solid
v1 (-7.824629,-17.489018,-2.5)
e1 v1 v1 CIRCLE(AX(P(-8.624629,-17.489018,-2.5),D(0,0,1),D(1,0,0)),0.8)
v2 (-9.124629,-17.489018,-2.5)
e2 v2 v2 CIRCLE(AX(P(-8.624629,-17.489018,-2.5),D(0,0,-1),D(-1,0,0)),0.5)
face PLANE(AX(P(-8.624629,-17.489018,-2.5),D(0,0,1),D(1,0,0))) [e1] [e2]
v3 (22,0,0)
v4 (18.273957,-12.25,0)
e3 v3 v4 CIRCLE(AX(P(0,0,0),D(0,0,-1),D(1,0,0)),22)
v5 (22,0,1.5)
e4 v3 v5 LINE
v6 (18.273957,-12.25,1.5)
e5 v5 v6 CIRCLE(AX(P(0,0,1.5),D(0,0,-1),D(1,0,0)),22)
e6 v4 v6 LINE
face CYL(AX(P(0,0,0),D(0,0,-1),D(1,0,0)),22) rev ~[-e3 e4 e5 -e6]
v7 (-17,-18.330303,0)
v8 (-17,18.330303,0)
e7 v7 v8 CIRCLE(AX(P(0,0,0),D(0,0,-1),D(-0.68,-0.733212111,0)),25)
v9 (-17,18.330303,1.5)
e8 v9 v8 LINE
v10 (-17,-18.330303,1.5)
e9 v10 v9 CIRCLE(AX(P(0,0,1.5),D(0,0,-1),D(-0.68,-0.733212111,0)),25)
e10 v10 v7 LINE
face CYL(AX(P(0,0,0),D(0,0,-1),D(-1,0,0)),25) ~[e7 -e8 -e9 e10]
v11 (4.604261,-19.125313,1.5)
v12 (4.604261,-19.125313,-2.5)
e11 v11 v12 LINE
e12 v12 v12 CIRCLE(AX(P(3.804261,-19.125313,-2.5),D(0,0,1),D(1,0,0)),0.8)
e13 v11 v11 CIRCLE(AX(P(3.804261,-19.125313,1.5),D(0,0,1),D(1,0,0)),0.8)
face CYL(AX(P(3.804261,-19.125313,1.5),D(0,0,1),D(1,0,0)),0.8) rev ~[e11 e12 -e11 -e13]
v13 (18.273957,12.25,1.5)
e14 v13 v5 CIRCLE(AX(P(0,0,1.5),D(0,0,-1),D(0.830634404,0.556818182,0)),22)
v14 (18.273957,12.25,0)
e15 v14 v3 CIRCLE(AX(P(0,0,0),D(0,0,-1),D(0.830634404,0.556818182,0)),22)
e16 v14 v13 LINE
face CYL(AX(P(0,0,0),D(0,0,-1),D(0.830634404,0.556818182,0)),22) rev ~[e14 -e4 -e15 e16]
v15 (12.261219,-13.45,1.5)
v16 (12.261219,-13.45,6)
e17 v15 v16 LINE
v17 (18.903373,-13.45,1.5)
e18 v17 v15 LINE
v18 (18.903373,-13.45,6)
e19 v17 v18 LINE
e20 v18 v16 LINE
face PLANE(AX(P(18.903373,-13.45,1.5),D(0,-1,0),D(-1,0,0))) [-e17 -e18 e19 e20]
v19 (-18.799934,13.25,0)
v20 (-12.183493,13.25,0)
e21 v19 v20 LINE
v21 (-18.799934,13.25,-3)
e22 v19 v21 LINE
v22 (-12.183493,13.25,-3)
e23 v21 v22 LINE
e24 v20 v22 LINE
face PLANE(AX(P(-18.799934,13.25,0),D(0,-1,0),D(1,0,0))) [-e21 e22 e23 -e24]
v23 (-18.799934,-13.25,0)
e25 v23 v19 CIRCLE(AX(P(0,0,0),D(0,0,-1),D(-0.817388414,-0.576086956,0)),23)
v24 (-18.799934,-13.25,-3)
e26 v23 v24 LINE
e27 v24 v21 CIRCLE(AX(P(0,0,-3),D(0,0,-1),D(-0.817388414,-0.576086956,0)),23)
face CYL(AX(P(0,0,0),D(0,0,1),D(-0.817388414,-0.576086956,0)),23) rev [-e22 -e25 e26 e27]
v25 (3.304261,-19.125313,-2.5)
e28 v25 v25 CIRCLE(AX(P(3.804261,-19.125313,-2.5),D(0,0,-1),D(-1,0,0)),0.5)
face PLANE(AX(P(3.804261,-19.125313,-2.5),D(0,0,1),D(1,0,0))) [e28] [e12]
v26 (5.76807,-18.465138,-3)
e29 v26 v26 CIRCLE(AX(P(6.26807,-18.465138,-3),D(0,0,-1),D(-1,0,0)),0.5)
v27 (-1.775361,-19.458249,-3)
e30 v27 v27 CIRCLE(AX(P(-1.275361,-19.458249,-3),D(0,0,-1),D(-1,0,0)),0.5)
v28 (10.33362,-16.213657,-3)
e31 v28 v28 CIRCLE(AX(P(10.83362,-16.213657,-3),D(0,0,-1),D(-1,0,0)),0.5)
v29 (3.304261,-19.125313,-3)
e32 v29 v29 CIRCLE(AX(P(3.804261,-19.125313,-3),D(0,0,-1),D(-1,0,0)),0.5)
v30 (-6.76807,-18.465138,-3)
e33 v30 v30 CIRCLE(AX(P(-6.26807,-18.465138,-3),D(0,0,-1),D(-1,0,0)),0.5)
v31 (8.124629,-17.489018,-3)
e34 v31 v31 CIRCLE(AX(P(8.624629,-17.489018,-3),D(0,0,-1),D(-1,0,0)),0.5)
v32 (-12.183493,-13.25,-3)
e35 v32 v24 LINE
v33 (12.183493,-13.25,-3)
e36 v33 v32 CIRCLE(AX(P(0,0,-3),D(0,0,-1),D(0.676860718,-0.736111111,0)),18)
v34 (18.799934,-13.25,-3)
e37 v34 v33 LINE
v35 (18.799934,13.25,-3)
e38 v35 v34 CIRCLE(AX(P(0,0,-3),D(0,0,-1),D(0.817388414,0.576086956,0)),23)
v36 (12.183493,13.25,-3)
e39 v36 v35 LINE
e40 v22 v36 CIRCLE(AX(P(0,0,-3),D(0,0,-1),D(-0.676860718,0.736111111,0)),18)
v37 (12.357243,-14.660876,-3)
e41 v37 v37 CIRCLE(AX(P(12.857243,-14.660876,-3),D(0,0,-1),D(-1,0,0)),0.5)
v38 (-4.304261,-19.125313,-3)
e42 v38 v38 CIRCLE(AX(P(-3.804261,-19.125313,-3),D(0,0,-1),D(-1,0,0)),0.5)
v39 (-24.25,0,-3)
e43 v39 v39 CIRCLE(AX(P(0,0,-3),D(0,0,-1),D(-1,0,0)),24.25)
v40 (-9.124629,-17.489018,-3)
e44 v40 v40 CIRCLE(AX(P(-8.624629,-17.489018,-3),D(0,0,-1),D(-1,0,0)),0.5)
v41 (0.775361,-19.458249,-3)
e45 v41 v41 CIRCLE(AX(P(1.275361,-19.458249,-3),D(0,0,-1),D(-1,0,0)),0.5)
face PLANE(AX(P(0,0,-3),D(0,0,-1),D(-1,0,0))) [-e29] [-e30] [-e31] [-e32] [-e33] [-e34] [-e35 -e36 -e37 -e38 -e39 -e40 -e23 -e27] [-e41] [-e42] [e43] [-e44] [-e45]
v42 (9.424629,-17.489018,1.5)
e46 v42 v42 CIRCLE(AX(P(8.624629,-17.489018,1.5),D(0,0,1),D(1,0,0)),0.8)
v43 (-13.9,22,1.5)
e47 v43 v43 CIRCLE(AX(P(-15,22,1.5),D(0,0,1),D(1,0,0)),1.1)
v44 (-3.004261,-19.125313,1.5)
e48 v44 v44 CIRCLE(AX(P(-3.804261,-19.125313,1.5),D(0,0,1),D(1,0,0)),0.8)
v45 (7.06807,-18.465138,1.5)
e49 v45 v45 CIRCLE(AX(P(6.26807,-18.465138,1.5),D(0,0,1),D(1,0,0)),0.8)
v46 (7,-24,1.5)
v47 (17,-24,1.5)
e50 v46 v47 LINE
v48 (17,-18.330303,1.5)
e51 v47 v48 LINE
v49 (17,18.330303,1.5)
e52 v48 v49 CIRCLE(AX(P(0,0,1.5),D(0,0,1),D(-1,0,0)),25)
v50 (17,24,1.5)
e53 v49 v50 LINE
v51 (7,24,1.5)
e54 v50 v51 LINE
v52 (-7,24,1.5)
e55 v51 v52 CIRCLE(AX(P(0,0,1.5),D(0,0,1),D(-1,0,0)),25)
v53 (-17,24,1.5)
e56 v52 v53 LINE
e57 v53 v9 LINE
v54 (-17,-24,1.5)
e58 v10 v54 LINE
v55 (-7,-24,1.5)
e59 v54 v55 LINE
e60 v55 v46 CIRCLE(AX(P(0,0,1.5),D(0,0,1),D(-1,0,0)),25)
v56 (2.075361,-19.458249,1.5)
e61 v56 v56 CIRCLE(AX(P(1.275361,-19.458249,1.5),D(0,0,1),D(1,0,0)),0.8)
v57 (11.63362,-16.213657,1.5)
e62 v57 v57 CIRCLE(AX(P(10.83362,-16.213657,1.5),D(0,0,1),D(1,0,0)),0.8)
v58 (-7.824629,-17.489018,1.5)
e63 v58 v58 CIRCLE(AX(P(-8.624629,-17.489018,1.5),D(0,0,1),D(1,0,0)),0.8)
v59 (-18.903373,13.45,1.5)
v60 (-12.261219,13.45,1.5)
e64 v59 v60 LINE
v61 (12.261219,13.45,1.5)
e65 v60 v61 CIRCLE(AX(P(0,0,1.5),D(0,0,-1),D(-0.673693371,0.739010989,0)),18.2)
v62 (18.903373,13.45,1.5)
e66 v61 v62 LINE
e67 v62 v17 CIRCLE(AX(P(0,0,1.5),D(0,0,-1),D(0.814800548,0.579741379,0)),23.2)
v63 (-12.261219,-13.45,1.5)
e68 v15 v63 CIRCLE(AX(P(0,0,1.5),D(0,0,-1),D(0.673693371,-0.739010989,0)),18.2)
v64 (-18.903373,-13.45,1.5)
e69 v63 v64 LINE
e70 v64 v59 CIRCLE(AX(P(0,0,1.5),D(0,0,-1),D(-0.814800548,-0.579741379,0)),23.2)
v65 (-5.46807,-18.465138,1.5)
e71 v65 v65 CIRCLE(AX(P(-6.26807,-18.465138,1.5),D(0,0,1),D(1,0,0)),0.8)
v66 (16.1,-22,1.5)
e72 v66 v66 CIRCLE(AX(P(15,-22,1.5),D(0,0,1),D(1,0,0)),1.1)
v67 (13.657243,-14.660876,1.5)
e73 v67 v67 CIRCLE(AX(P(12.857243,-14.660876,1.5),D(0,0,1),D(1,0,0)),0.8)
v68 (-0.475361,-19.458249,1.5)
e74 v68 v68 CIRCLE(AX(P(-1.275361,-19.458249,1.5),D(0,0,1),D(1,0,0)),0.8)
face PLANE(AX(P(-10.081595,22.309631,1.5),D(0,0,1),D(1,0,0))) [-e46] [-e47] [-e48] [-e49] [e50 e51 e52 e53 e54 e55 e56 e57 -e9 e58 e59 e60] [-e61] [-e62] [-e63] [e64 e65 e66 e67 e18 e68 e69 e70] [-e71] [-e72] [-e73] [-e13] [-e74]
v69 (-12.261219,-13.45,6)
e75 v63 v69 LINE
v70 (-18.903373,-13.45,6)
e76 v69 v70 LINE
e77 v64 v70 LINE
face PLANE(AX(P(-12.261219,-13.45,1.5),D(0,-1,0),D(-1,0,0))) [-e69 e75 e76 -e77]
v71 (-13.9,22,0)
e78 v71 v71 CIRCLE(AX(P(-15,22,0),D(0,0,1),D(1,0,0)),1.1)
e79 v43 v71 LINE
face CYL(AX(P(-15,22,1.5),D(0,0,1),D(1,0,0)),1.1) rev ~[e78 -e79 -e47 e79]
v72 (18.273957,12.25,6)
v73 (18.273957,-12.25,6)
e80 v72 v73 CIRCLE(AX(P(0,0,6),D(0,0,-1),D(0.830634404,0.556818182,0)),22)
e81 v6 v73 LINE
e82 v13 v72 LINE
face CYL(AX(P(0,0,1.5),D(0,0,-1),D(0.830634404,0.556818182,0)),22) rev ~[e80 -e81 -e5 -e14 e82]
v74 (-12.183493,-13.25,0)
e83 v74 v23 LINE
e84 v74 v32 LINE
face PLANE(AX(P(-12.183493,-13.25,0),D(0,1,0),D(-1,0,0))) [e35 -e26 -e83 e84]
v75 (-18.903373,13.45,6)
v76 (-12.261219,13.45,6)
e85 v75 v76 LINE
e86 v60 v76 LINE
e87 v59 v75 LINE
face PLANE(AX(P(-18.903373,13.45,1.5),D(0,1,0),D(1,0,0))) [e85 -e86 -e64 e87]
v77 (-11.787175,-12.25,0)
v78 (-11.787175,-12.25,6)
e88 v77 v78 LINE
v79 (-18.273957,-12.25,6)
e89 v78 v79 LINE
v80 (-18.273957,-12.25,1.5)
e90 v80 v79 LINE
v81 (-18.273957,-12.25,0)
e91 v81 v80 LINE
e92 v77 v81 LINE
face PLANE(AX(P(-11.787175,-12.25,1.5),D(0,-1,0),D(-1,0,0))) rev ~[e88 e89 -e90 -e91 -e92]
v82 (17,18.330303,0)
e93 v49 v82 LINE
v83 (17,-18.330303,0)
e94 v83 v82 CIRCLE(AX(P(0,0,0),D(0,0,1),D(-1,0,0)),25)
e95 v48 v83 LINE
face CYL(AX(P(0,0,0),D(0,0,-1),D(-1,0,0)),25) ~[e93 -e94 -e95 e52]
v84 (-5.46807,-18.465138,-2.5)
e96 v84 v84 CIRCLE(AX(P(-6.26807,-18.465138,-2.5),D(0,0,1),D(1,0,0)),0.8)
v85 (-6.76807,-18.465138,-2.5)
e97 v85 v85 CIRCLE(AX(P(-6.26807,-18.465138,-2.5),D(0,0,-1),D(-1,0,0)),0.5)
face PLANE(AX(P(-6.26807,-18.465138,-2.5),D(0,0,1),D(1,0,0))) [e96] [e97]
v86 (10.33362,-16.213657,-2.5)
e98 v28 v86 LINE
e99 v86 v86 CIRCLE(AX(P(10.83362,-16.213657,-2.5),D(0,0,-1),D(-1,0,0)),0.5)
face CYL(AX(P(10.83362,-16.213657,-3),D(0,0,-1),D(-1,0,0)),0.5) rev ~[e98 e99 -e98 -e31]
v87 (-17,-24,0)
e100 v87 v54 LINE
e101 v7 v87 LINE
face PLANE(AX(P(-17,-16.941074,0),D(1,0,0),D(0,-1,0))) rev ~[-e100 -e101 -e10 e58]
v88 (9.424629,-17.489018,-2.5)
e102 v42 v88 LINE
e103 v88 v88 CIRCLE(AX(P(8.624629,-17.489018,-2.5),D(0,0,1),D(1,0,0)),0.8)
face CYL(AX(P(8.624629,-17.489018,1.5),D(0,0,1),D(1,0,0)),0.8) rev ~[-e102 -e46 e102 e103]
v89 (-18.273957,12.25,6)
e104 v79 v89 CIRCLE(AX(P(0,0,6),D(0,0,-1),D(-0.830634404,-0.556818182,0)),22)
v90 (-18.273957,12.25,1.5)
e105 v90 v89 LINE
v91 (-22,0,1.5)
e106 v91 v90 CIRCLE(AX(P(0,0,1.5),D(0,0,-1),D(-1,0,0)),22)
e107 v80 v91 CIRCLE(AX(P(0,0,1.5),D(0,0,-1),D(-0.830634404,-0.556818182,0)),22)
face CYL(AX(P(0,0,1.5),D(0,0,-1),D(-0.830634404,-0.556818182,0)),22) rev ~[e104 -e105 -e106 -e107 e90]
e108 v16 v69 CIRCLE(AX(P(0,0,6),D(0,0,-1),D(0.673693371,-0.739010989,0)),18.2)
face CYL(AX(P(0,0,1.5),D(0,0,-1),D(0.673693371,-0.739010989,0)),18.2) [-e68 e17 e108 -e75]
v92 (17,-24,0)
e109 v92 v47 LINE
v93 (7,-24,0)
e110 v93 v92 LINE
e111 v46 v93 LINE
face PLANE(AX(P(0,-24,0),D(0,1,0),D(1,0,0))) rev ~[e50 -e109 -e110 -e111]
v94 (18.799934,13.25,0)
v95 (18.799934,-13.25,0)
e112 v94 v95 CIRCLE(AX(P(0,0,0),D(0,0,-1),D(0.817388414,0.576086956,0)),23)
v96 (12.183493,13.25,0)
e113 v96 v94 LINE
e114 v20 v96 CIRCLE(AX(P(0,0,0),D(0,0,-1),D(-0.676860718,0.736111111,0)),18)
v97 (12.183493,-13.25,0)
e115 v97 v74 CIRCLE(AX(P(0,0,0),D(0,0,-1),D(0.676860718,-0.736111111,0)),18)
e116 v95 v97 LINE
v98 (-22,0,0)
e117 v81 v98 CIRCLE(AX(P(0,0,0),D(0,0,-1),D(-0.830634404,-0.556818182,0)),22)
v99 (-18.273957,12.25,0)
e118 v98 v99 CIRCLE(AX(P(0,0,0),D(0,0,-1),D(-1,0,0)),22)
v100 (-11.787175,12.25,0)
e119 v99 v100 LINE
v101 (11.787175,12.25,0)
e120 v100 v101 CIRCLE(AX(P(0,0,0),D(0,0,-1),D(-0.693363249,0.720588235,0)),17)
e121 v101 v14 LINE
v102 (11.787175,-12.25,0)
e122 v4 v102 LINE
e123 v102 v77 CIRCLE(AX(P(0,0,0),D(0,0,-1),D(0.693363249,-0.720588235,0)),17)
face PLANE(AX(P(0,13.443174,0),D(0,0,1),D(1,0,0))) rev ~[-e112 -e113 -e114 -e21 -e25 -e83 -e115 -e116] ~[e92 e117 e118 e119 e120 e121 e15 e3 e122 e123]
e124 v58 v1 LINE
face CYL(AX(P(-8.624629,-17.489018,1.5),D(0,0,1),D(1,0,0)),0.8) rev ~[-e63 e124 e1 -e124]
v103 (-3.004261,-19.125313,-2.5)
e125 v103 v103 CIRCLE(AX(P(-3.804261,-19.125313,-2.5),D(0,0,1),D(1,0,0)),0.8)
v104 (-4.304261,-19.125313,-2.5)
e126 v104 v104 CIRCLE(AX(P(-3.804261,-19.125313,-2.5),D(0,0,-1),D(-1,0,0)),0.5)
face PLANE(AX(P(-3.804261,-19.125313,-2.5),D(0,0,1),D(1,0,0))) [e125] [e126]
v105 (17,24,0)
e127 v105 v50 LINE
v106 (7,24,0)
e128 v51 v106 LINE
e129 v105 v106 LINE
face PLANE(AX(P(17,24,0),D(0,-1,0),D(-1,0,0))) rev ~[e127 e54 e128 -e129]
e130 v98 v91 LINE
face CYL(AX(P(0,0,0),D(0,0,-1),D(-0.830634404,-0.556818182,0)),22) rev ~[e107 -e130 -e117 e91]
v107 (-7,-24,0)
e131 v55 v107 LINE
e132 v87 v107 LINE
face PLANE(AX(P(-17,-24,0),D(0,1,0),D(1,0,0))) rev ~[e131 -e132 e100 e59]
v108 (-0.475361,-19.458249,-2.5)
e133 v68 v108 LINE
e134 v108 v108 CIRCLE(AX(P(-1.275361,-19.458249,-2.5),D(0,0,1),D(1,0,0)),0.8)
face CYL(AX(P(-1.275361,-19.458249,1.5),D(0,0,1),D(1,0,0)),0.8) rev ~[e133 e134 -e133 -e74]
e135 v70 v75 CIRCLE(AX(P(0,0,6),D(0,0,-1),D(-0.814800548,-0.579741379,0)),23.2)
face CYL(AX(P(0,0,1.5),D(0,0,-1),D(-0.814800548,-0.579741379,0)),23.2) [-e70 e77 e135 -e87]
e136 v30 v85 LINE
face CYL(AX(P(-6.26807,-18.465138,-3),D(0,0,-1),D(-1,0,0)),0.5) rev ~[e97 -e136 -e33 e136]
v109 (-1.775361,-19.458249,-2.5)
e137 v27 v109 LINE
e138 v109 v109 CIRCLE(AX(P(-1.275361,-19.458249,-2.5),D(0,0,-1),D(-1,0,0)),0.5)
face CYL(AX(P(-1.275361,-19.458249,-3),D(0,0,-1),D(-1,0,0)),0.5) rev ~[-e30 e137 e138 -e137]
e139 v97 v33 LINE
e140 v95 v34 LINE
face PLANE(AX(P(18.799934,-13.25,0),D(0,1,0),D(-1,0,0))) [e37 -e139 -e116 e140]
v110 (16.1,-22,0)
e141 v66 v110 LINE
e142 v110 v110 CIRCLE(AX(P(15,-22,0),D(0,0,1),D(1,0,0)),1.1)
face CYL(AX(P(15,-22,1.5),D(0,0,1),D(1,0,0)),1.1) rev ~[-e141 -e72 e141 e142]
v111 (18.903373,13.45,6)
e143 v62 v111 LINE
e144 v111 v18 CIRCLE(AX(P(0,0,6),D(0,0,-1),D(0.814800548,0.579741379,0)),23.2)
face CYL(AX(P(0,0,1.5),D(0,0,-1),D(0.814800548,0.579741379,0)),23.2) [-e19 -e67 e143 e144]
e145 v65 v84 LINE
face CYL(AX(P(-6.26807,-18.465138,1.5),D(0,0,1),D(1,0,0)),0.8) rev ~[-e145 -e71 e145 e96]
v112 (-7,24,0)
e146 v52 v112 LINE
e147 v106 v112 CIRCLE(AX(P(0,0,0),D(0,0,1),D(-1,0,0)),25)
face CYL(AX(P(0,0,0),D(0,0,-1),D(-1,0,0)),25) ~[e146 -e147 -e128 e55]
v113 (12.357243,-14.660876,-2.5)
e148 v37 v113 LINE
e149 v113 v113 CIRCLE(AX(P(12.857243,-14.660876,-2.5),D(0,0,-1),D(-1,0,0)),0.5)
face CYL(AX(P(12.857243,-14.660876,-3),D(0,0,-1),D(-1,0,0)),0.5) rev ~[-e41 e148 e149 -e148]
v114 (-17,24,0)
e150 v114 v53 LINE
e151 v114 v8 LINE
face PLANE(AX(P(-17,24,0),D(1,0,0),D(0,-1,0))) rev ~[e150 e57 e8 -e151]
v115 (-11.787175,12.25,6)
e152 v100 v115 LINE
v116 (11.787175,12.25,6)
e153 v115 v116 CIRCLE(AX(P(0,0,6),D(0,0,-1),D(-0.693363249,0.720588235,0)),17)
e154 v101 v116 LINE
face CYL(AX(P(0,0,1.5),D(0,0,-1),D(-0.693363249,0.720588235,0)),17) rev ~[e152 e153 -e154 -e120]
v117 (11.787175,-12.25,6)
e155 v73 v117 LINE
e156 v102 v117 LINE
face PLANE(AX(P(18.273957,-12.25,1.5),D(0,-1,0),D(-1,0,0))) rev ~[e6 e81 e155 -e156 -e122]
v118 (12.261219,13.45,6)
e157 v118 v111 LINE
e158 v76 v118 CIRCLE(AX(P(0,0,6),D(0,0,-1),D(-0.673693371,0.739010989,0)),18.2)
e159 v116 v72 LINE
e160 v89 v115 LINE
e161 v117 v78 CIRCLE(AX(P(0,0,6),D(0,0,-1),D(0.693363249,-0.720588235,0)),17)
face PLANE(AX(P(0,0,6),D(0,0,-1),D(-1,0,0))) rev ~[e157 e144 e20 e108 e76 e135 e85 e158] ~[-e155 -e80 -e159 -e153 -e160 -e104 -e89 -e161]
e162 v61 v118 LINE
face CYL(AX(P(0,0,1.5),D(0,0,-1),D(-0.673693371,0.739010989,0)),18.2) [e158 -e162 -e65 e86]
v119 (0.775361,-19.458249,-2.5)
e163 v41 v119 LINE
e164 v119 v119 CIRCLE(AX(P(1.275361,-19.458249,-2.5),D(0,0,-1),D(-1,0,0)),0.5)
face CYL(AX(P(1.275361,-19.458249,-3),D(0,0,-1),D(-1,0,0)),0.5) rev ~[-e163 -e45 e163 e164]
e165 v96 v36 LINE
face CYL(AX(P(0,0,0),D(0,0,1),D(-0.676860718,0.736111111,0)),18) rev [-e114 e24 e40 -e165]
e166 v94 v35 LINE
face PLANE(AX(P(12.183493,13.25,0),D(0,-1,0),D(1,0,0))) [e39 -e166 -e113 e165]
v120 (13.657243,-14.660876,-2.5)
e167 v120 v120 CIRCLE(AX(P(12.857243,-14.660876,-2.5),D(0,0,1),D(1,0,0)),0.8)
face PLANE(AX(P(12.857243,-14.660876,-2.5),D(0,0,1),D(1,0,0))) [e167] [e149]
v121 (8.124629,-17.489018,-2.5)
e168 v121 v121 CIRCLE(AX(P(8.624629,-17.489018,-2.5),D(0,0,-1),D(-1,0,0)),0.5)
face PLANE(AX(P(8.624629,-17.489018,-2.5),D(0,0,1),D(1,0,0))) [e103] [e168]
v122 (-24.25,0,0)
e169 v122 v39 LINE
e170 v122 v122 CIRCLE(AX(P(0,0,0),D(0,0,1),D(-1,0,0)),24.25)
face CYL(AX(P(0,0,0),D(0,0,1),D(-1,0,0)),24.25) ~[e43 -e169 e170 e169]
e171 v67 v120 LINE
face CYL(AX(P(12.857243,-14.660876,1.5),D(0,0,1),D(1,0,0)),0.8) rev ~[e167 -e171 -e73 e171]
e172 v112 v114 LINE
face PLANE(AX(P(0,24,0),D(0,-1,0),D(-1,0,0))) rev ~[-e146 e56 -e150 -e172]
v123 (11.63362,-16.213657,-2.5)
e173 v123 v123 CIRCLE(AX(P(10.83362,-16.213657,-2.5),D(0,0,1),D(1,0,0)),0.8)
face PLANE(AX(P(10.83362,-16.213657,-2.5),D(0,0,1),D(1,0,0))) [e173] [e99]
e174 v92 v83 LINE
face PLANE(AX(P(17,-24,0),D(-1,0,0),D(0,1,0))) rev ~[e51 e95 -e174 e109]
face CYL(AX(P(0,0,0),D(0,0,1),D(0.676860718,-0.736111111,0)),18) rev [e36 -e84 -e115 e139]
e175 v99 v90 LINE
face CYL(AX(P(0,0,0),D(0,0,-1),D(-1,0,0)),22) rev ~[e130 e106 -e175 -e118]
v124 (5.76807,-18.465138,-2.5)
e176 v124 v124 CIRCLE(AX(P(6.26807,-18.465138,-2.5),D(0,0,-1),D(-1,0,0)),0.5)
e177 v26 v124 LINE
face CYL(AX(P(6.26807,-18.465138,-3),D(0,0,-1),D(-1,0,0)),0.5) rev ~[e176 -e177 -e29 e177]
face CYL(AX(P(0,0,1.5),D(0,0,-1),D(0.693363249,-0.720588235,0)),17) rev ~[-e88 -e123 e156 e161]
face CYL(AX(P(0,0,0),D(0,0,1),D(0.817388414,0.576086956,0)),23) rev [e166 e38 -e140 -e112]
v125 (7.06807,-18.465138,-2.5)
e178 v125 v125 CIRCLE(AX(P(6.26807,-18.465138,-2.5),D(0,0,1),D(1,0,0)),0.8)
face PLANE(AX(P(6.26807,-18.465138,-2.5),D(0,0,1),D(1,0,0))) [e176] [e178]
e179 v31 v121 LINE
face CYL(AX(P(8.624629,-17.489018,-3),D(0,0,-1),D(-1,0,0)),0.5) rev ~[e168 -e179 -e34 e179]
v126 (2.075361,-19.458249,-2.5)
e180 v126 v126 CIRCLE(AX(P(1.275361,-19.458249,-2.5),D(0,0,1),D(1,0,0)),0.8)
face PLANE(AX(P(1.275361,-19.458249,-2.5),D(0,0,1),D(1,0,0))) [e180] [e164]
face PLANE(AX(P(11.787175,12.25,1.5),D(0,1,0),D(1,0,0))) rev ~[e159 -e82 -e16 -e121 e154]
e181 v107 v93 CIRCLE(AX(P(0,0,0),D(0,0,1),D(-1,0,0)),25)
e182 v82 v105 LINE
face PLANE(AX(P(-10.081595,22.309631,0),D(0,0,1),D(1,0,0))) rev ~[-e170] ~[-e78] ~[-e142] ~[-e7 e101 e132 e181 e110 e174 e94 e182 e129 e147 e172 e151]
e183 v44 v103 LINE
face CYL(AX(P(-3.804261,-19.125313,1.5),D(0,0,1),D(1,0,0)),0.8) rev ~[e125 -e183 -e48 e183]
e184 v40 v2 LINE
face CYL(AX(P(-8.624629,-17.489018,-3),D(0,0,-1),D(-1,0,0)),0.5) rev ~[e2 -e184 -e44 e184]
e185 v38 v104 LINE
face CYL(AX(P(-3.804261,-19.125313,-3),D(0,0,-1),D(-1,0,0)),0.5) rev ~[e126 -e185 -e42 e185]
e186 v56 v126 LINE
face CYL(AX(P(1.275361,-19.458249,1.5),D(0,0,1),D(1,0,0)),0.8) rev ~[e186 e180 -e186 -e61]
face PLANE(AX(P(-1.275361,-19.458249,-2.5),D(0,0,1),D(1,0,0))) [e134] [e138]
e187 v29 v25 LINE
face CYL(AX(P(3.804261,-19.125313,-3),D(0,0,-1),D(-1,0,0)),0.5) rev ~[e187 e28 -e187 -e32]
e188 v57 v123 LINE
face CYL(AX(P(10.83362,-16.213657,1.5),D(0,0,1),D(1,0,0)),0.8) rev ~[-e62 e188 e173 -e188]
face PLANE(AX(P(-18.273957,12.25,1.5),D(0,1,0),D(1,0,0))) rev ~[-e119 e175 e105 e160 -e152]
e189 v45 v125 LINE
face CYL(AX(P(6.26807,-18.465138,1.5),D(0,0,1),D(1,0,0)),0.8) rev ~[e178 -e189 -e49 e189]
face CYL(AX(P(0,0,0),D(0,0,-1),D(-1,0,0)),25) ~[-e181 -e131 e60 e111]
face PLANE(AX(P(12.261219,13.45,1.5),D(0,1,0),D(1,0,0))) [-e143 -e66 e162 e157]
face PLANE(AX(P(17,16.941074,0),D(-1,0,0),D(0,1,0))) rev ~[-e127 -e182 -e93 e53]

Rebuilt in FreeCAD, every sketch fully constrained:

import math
import FreeCAD as App
import Part
import Sketcher
from FreeCAD import Vector
Q = App.Units.Quantity

doc = App.newDocument("Part")
body = doc.addObject("PartDesign::Body", "Body")

# Sketch on XY plane
sketch1 = body.newObject("Sketcher::SketchObject", "Sketch")
sketch1.AttachmentSupport = (doc.getObject("XY_Plane"), [""])
sketch1.MapMode = "FlatFace"
sketch1.addGeometry([
    Part.Circle(Vector(0, 0, 0), Vector(0, 0, 1), 25),  # 0
    Part.ArcOfCircle(Part.Circle(Vector(0, 0, 0), Vector(0, 0, 1), 22), math.radians(0), math.radians(33.836038)),  # 1
    Part.ArcOfCircle(Part.Circle(Vector(0, 0, 0), Vector(0, 0, 1), 22), math.radians(-33.836038), math.radians(0)),  # 2
    Part.LineSegment(Vector(18.273957, -12.25, 0), Vector(11.787175, -12.25, 0)),  # 3
    Part.ArcOfCircle(Part.Circle(Vector(0, 0, 0), Vector(0, 0, 1), 17), math.radians(-133.896932), math.radians(-46.103068)),  # 4
    Part.LineSegment(Vector(-11.787175, -12.25, 0), Vector(-18.273957, -12.25, 0)),  # 5
    Part.ArcOfCircle(Part.Circle(Vector(0, 0, 0), Vector(0, 0, 1), 22), math.radians(-180), math.radians(-146.163962)),  # 6
    Part.ArcOfCircle(Part.Circle(Vector(0, 0, 0), Vector(0, 0, 1), 22), math.radians(146.163962), math.radians(180)),  # 7
    Part.LineSegment(Vector(-18.273957, 12.25, 0), Vector(-11.787175, 12.25, 0)),  # 8
    Part.ArcOfCircle(Part.Circle(Vector(0, 0, 0), Vector(0, 0, 1), 17), math.radians(46.103068), math.radians(133.896932)),  # 9
    Part.LineSegment(Vector(11.787175, 12.25, 0), Vector(18.273957, 12.25, 0)),  # 10
], False)
sketch1.addConstraint([
    Sketcher.Constraint("Tangent", 1, 1, 2, 2),
    Sketcher.Constraint("Coincident", 2, 1, 3, 1),
    Sketcher.Constraint("Coincident", 3, 2, 4, 2),
    Sketcher.Constraint("Coincident", 4, 1, 5, 1),
    Sketcher.Constraint("Coincident", 5, 2, 6, 2),
    Sketcher.Constraint("Tangent", 6, 1, 7, 2),
    Sketcher.Constraint("Coincident", 7, 1, 8, 1),
    Sketcher.Constraint("Coincident", 8, 2, 9, 2),
    Sketcher.Constraint("Coincident", 9, 1, 10, 1),
    Sketcher.Constraint("Coincident", 10, 2, 1, 2),
    Sketcher.Constraint("Horizontal", 3),
    Sketcher.Constraint("Horizontal", 5),
    Sketcher.Constraint("Horizontal", 8),
    Sketcher.Constraint("Horizontal", 10),
    Sketcher.Constraint("Coincident", 0, 3, -1, 1),
    Sketcher.Constraint("Coincident", 1, 3, -1, 1),
    Sketcher.Constraint("Coincident", 4, 3, -1, 1),
    Sketcher.Constraint("Coincident", 6, 3, -1, 1),
    Sketcher.Constraint("Coincident", 9, 3, -1, 1),
    Sketcher.Constraint("Equal", 1, 2),
    Sketcher.Constraint("Equal", 2, 6),
    Sketcher.Constraint("Equal", 6, 7),
    Sketcher.Constraint("Equal", 4, 9),
    Sketcher.Constraint("PointOnObject", 1, 1, -1),
    Sketcher.Constraint("PointOnObject", 6, 1, -1),
    Sketcher.Constraint("Horizontal", 3, 2, 4, 1),
    Sketcher.Constraint("Horizontal", 8, 2, 9, 1),
    Sketcher.Constraint("Vertical", 5, 2, 7, 1),
    Sketcher.Constraint("Diameter", 0, Q("50 mm")),
    Sketcher.Constraint("Radius", 1, Q("22 mm")),
    Sketcher.Constraint("Radius", 4, Q("17 mm")),
    Sketcher.Constraint("DistanceY", 2, 1, -1, 1, Q("12.25 mm")),
])
pad1 = body.newObject("PartDesign::Pad", "Pad")
pad1.Profile = sketch1
pad1.Length = 1.5

# Sketch on XY plane
sketch2 = body.newObject("Sketcher::SketchObject", "Sketch001")
sketch2.AttachmentSupport = (doc.getObject("XY_Plane"), [""])
sketch2.MapMode = "FlatFace"
sketch2.AttachmentOffset = App.Placement(Vector(0, 0, 1.5), App.Rotation())
sketch2.addGeometry([
    Part.LineSegment(Vector(-12.261219, 13.45, 0), Vector(-18.903373, 13.45, 0)),  # 0
    Part.ArcOfCircle(Part.Circle(Vector(0, 0, 0), Vector(0, 0, 1), 23.2), math.radians(144.567645), math.radians(215.432355)),  # 1
    Part.LineSegment(Vector(-18.903373, -13.45, 0), Vector(-12.261219, -13.45, 0)),  # 2
    Part.ArcOfCircle(Part.Circle(Vector(0, 0, 0), Vector(0, 0, 1), 18.2), math.radians(-132.352765), math.radians(-47.647235)),  # 3
    Part.LineSegment(Vector(12.261219, -13.45, 0), Vector(18.903373, -13.45, 0)),  # 4
    Part.ArcOfCircle(Part.Circle(Vector(0, 0, 0), Vector(0, 0, 1), 23.2), math.radians(-35.432355), math.radians(35.432355)),  # 5
    Part.LineSegment(Vector(18.903373, 13.45, 0), Vector(12.261219, 13.45, 0)),  # 6
    Part.ArcOfCircle(Part.Circle(Vector(0, 0, 0), Vector(0, 0, 1), 18.2), math.radians(47.647235), math.radians(132.352765)),  # 7
    Part.LineSegment(Vector(-18.273957, 12.25, 0), Vector(-11.787175, 12.25, 0)),  # 8
    Part.ArcOfCircle(Part.Circle(Vector(0, 0, 0), Vector(0, 0, 1), 17), math.radians(46.103068), math.radians(133.896932)),  # 9
    Part.LineSegment(Vector(11.787175, 12.25, 0), Vector(18.273957, 12.25, 0)),  # 10
    Part.ArcOfCircle(Part.Circle(Vector(0, 0, 0), Vector(0, 0, 1), 22), math.radians(-33.836038), math.radians(33.836038)),  # 11
    Part.LineSegment(Vector(18.273957, -12.25, 0), Vector(11.787175, -12.25, 0)),  # 12
    Part.ArcOfCircle(Part.Circle(Vector(0, 0, 0), Vector(0, 0, 1), 17), math.radians(-133.896932), math.radians(-46.103068)),  # 13
    Part.LineSegment(Vector(-11.787175, -12.25, 0), Vector(-18.273957, -12.25, 0)),  # 14
    Part.ArcOfCircle(Part.Circle(Vector(0, 0, 0), Vector(0, 0, 1), 22), math.radians(146.163962), math.radians(213.836038)),  # 15
], False)
sketch2.addConstraint([
    Sketcher.Constraint("Coincident", 0, 2, 1, 1),
    Sketcher.Constraint("Coincident", 1, 2, 2, 1),
    Sketcher.Constraint("Coincident", 2, 2, 3, 1),
    Sketcher.Constraint("Coincident", 3, 2, 4, 1),
    Sketcher.Constraint("Coincident", 4, 2, 5, 1),
    Sketcher.Constraint("Coincident", 5, 2, 6, 1),
    Sketcher.Constraint("Coincident", 6, 2, 7, 1),
    Sketcher.Constraint("Coincident", 7, 2, 0, 1),
    Sketcher.Constraint("Coincident", 8, 2, 9, 2),
    Sketcher.Constraint("Coincident", 9, 1, 10, 1),
    Sketcher.Constraint("Coincident", 10, 2, 11, 2),
    Sketcher.Constraint("Coincident", 11, 1, 12, 1),
    Sketcher.Constraint("Coincident", 12, 2, 13, 2),
    Sketcher.Constraint("Coincident", 13, 1, 14, 1),
    Sketcher.Constraint("Coincident", 14, 2, 15, 2),
    Sketcher.Constraint("Coincident", 15, 1, 8, 1),
    Sketcher.Constraint("Horizontal", 0),
    Sketcher.Constraint("Horizontal", 2),
    Sketcher.Constraint("Horizontal", 4),
    Sketcher.Constraint("Horizontal", 6),
    Sketcher.Constraint("Horizontal", 8),
    Sketcher.Constraint("Horizontal", 10),
    Sketcher.Constraint("Horizontal", 12),
    Sketcher.Constraint("Horizontal", 14),
    Sketcher.Constraint("Coincident", 1, 3, -1, 1),
    Sketcher.Constraint("Coincident", 3, 3, -1, 1),
    Sketcher.Constraint("Coincident", 5, 3, -1, 1),
    Sketcher.Constraint("Coincident", 7, 3, -1, 1),
    Sketcher.Constraint("Coincident", 9, 3, -1, 1),
    Sketcher.Constraint("Coincident", 11, 3, -1, 1),
    Sketcher.Constraint("Coincident", 13, 3, -1, 1),
    Sketcher.Constraint("Coincident", 15, 3, -1, 1),
    Sketcher.Constraint("Equal", 1, 5),
    Sketcher.Constraint("Equal", 3, 7),
    Sketcher.Constraint("Equal", 9, 13),
    Sketcher.Constraint("Equal", 11, 15),
    Sketcher.Constraint("Horizontal", 2, 2, 3, 2),
    Sketcher.Constraint("Horizontal", 0, 2, 5, 2),
    Sketcher.Constraint("Horizontal", 8, 2, 9, 1),
    Sketcher.Constraint("Horizontal", 12, 2, 13, 1),
    Sketcher.Constraint("Vertical", 0, 2, 1, 2),
    Sketcher.Constraint("Vertical", 10, 2, 11, 1),
    Sketcher.Constraint("Radius", 9, Q("17 mm")),
    Sketcher.Constraint("Radius", 11, Q("22 mm")),
    Sketcher.Constraint("Radius", 1, Q("23.2 mm")),
    Sketcher.Constraint("Radius", 3, Q("18.2 mm")),
    Sketcher.Constraint("DistanceY", 8, 2, 7, 2, Q("1.2 mm")),
    Sketcher.Constraint("DistanceY", -1, 1, 0, 2, Q("13.45 mm")),
])
pad2 = body.newObject("PartDesign::Pad", "Pad001")
pad2.Profile = sketch2
pad2.Length = 4.5

# Sketch on XY plane
sketch3 = body.newObject("Sketcher::SketchObject", "Sketch002")
sketch3.AttachmentSupport = (doc.getObject("XY_Plane"), [""])
sketch3.MapMode = "FlatFace"
sketch3.addGeometry([
    Part.Circle(Vector(0, 0, 0), Vector(0, 0, 1), 24.25),  # 0
    Part.LineSegment(Vector(12.183493, -13.25, 0), Vector(18.799934, -13.25, 0)),  # 1
    Part.ArcOfCircle(Part.Circle(Vector(0, 0, 0), Vector(0, 0, 1), 23), math.radians(-35.175788), math.radians(35.175788)),  # 2
    Part.LineSegment(Vector(18.799934, 13.25, 0), Vector(12.183493, 13.25, 0)),  # 3
    Part.ArcOfCircle(Part.Circle(Vector(0, 0, 0), Vector(0, 0, 1), 18), math.radians(47.401187), math.radians(132.598813)),  # 4
    Part.LineSegment(Vector(-12.183493, 13.25, 0), Vector(-18.799934, 13.25, 0)),  # 5
    Part.ArcOfCircle(Part.Circle(Vector(0, 0, 0), Vector(0, 0, 1), 23), math.radians(144.824212), math.radians(215.175788)),  # 6
    Part.LineSegment(Vector(-18.799934, -13.25, 0), Vector(-12.183493, -13.25, 0)),  # 7
    Part.ArcOfCircle(Part.Circle(Vector(0, 0, 0), Vector(0, 0, 1), 18), math.radians(-132.598813), math.radians(-47.401187)),  # 8
], False)
sketch3.addConstraint([
    Sketcher.Constraint("Coincident", 1, 2, 2, 1),
    Sketcher.Constraint("Coincident", 2, 2, 3, 1),
    Sketcher.Constraint("Coincident", 3, 2, 4, 1),
    Sketcher.Constraint("Coincident", 4, 2, 5, 1),
    Sketcher.Constraint("Coincident", 5, 2, 6, 1),
    Sketcher.Constraint("Coincident", 6, 2, 7, 1),
    Sketcher.Constraint("Coincident", 7, 2, 8, 1),
    Sketcher.Constraint("Coincident", 8, 2, 1, 1),
    Sketcher.Constraint("Horizontal", 1),
    Sketcher.Constraint("Horizontal", 3),
    Sketcher.Constraint("Horizontal", 5),
    Sketcher.Constraint("Horizontal", 7),
    Sketcher.Constraint("Coincident", 0, 3, -1, 1),
    Sketcher.Constraint("Coincident", 2, 3, -1, 1),
    Sketcher.Constraint("Coincident", 4, 3, -1, 1),
    Sketcher.Constraint("Coincident", 6, 3, -1, 1),
    Sketcher.Constraint("Coincident", 8, 3, -1, 1),
    Sketcher.Constraint("Equal", 2, 6),
    Sketcher.Constraint("Equal", 4, 8),
    Sketcher.Constraint("Horizontal", 3, 2, 4, 2),
    Sketcher.Constraint("Horizontal", 1, 2, 6, 2),
    Sketcher.Constraint("Vertical", 1, 2, 2, 2),
    Sketcher.Constraint("Radius", 2, Q("23 mm")),
    Sketcher.Constraint("Radius", 4, Q("18 mm")),
    Sketcher.Constraint("Diameter", 0, Q("48.5 mm")),
    Sketcher.Constraint("DistanceY", 1, 2, -1, 1, Q("13.25 mm")),
])
pad3 = body.newObject("PartDesign::Pad", "Pad002")
pad3.Profile = sketch3
pad3.Length = 3
pad3.Reversed = True

# Sketch on XY plane
sketch4 = body.newObject("Sketcher::SketchObject", "Sketch003")
sketch4.AttachmentSupport = (doc.getObject("XY_Plane"), [""])
sketch4.MapMode = "FlatFace"
sketch4.addGeometry([
    Part.LineSegment(Vector(-17, 24, 0), Vector(-17, 16.941074, 0)),  # 0
    Part.ArcOfCircle(Part.Circle(Vector(0, 0, 0), Vector(0, 0, 1), 24), math.radians(90), math.radians(135.099472)),  # 1
    Part.LineSegment(Vector(0, 24, 0), Vector(-17, 24, 0)),  # 2
    Part.ArcOfCircle(Part.Circle(Vector(0, 0, 0), Vector(0, 0, 1), 24), math.radians(44.900528), math.radians(90)),  # 3
    Part.LineSegment(Vector(17, 16.941074, 0), Vector(17, 24, 0)),  # 4
    Part.LineSegment(Vector(17, 24, 0), Vector(0, 24, 0)),  # 5
    Part.ArcOfCircle(Part.Circle(Vector(0, 0, 0), Vector(0, 0, 1), 24), math.radians(-90), math.radians(-44.900528)),  # 6
    Part.LineSegment(Vector(0, -24, 0), Vector(17, -24, 0)),  # 7
    Part.LineSegment(Vector(17, -24, 0), Vector(17, -16.941074, 0)),  # 8
    Part.LineSegment(Vector(-17, -16.941074, 0), Vector(-17, -24, 0)),  # 9
    Part.LineSegment(Vector(-17, -24, 0), Vector(0, -24, 0)),  # 10
    Part.ArcOfCircle(Part.Circle(Vector(0, 0, 0), Vector(0, 0, 1), 24), math.radians(-135.099472), math.radians(-90)),  # 11
], False)
sketch4.addConstraint([
    Sketcher.Constraint("Coincident", 0, 2, 1, 2),
    Sketcher.Constraint("Tangent", 1, 1, 2, 1),
    Sketcher.Constraint("Coincident", 2, 2, 0, 1),
    Sketcher.Constraint("Coincident", 3, 1, 4, 1),
    Sketcher.Constraint("Coincident", 4, 2, 5, 1),
    Sketcher.Constraint("Tangent", 5, 2, 3, 2),
    Sketcher.Constraint("Tangent", 6, 1, 7, 1),
    Sketcher.Constraint("Coincident", 7, 2, 8, 1),
    Sketcher.Constraint("Coincident", 8, 2, 6, 2),
    Sketcher.Constraint("Coincident", 9, 2, 10, 1),
    Sketcher.Constraint("Tangent", 10, 2, 11, 2),
    Sketcher.Constraint("Coincident", 11, 1, 9, 1),
    Sketcher.Constraint("Vertical", 0),
    Sketcher.Constraint("Horizontal", 2),
    Sketcher.Constraint("Vertical", 4),
    Sketcher.Constraint("Horizontal", 5),
    Sketcher.Constraint("Horizontal", 7),
    Sketcher.Constraint("Vertical", 8),
    Sketcher.Constraint("Vertical", 9),
    Sketcher.Constraint("Horizontal", 10),
    Sketcher.Constraint("Coincident", 1, 3, -1, 1),
    Sketcher.Constraint("Coincident", 3, 3, -1, 1),
    Sketcher.Constraint("Coincident", 6, 3, -1, 1),
    Sketcher.Constraint("Coincident", 11, 3, -1, 1),
    Sketcher.Constraint("Equal", 1, 3),
    Sketcher.Constraint("Equal", 3, 6),
    Sketcher.Constraint("Equal", 6, 11),
    Sketcher.Constraint("Horizontal", 0, 2, 3, 1),
    Sketcher.Constraint("Horizontal", 8, 2, 11, 1),
    Sketcher.Constraint("Vertical", 4, 2, 7, 2),
    Sketcher.Constraint("Radius", 1, Q("24 mm")),
    Sketcher.Constraint("DistanceX", 2, 2, 2, 1, Q("17 mm")),
])
pad4 = body.newObject("PartDesign::Pad", "Pad003")
pad4.Profile = sketch4
pad4.Length = 1.5

# Sketch on XY plane
sketch5 = body.newObject("Sketcher::SketchObject", "Sketch004")
sketch5.AttachmentSupport = (doc.getObject("XY_Plane"), [""])
sketch5.MapMode = "FlatFace"
sketch5.AttachmentOffset = App.Placement(Vector(0, 0, -3), App.Rotation())
sketch5.addGeometry([
    Part.Circle(Vector(12.857243, -14.660876, 0), Vector(0, 0, 1), 0.5),  # 0
    Part.Circle(Vector(10.83362, -16.213657, 0), Vector(0, 0, 1), 0.5),  # 1
    Part.Circle(Vector(8.624629, -17.489018, 0), Vector(0, 0, 1), 0.5),  # 2
    Part.Circle(Vector(6.26807, -18.465138, 0), Vector(0, 0, 1), 0.5),  # 3
    Part.Circle(Vector(3.804261, -19.125313, 0), Vector(0, 0, 1), 0.5),  # 4
    Part.Circle(Vector(1.275361, -19.458249, 0), Vector(0, 0, 1), 0.5),  # 5
    Part.Circle(Vector(-1.275361, -19.458249, 0), Vector(0, 0, 1), 0.5),  # 6
    Part.Circle(Vector(-3.804261, -19.125313, 0), Vector(0, 0, 1), 0.5),  # 7
    Part.Circle(Vector(-6.26807, -18.465138, 0), Vector(0, 0, 1), 0.5),  # 8
    Part.Circle(Vector(-8.624629, -17.489018, 0), Vector(0, 0, 1), 0.5),  # 9
], False)
sketch5.addConstraint([
    Sketcher.Constraint("Equal", 0, 1),
    Sketcher.Constraint("Equal", 1, 2),
    Sketcher.Constraint("Equal", 2, 3),
    Sketcher.Constraint("Equal", 3, 4),
    Sketcher.Constraint("Equal", 4, 5),
    Sketcher.Constraint("Equal", 5, 6),
    Sketcher.Constraint("Equal", 6, 7),
    Sketcher.Constraint("Equal", 7, 8),
    Sketcher.Constraint("Equal", 8, 9),
    Sketcher.Constraint("Symmetric", 5, 3, 6, 3, -2),
    Sketcher.Constraint("Symmetric", 4, 3, 7, 3, -2),
    Sketcher.Constraint("Symmetric", 3, 3, 8, 3, -2),
    Sketcher.Constraint("Symmetric", 2, 3, 9, 3, -2),
    Sketcher.Constraint("Diameter", 0, Q("1 mm")),
    Sketcher.Constraint("DistanceX", 5, 3, 4, 3, Q("2.5289 mm")),
    Sketcher.Constraint("DistanceX", -1, 1, 1, 3, Q("10.83362 mm")),
    Sketcher.Constraint("DistanceX", -1, 1, 2, 3, Q("8.624629 mm")),
    Sketcher.Constraint("DistanceY", 2, 3, -1, 1, Q("17.489018 mm")),
    Sketcher.Constraint("DistanceX", -1, 1, 3, 3, Q("6.26807 mm")),
    Sketcher.Constraint("DistanceX", -1, 1, 4, 3, Q("3.804261 mm")),
    Sketcher.Constraint("DistanceY", 5, 3, -1, 1, Q("19.458249 mm")),
    Sketcher.Constraint("DistanceY", 1, 3, 0, 3, Q("1.552781 mm")),
    Sketcher.Constraint("DistanceY", 2, 3, 1, 3, Q("1.275361 mm")),
    Sketcher.Constraint("DistanceY", 3, 3, 2, 3, Q("0.976119 mm")),
    Sketcher.Constraint("DistanceX", -1, 1, 0, 3, Q("12.857243 mm")),
    Sketcher.Constraint("DistanceY", 4, 3, -1, 1, Q("19.125313 mm")),
])
pocket1 = body.newObject("PartDesign::Pocket", "Pocket")
pocket1.Profile = sketch5
pocket1.Type = "ThroughAll"
pocket1.Reversed = True

# Sketch on XY plane
sketch6 = body.newObject("Sketcher::SketchObject", "Sketch005")
sketch6.AttachmentSupport = (doc.getObject("XY_Plane"), [""])
sketch6.MapMode = "FlatFace"
sketch6.AttachmentOffset = App.Placement(Vector(0, 0, 1.5), App.Rotation())
sketch6.addGeometry([
    Part.Circle(Vector(12.857243, -14.660876, 0), Vector(0, 0, 1), 0.8),  # 0
    Part.Circle(Vector(10.83362, -16.213657, 0), Vector(0, 0, 1), 0.8),  # 1
    Part.Circle(Vector(8.624629, -17.489018, 0), Vector(0, 0, 1), 0.8),  # 2
    Part.Circle(Vector(6.26807, -18.465138, 0), Vector(0, 0, 1), 0.8),  # 3
    Part.Circle(Vector(3.804261, -19.125313, 0), Vector(0, 0, 1), 0.8),  # 4
    Part.Circle(Vector(1.275361, -19.458249, 0), Vector(0, 0, 1), 0.8),  # 5
    Part.Circle(Vector(-1.275361, -19.458249, 0), Vector(0, 0, 1), 0.8),  # 6
    Part.Circle(Vector(-3.804261, -19.125313, 0), Vector(0, 0, 1), 0.8),  # 7
    Part.Circle(Vector(-6.26807, -18.465138, 0), Vector(0, 0, 1), 0.8),  # 8
    Part.Circle(Vector(-8.624629, -17.489018, 0), Vector(0, 0, 1), 0.8),  # 9
], False)
sketch6.addConstraint([
    Sketcher.Constraint("Equal", 0, 1),
    Sketcher.Constraint("Equal", 1, 2),
    Sketcher.Constraint("Equal", 2, 3),
    Sketcher.Constraint("Equal", 3, 4),
    Sketcher.Constraint("Equal", 4, 5),
    Sketcher.Constraint("Equal", 5, 6),
    Sketcher.Constraint("Equal", 6, 7),
    Sketcher.Constraint("Equal", 7, 8),
    Sketcher.Constraint("Equal", 8, 9),
    Sketcher.Constraint("Symmetric", 5, 3, 6, 3, -2),
    Sketcher.Constraint("Symmetric", 4, 3, 7, 3, -2),
    Sketcher.Constraint("Symmetric", 3, 3, 8, 3, -2),
    Sketcher.Constraint("Symmetric", 2, 3, 9, 3, -2),
    Sketcher.Constraint("Diameter", 0, Q("1.6 mm")),
    Sketcher.Constraint("DistanceX", 5, 3, 4, 3, Q("2.5289 mm")),
    Sketcher.Constraint("DistanceX", -1, 1, 1, 3, Q("10.83362 mm")),
    Sketcher.Constraint("DistanceX", -1, 1, 2, 3, Q("8.624629 mm")),
    Sketcher.Constraint("DistanceY", 2, 3, -1, 1, Q("17.489018 mm")),
    Sketcher.Constraint("DistanceX", -1, 1, 3, 3, Q("6.26807 mm")),
    Sketcher.Constraint("DistanceX", -1, 1, 4, 3, Q("3.804261 mm")),
    Sketcher.Constraint("DistanceY", 5, 3, -1, 1, Q("19.458249 mm")),
    Sketcher.Constraint("DistanceY", 1, 3, 0, 3, Q("1.552781 mm")),
    Sketcher.Constraint("DistanceY", 2, 3, 1, 3, Q("1.275361 mm")),
    Sketcher.Constraint("DistanceY", 3, 3, 2, 3, Q("0.976119 mm")),
    Sketcher.Constraint("DistanceX", -1, 1, 0, 3, Q("12.857243 mm")),
    Sketcher.Constraint("DistanceY", 4, 3, -1, 1, Q("19.125313 mm")),
])
pocket2 = body.newObject("PartDesign::Pocket", "Pocket001")
pocket2.Profile = sketch6
pocket2.Length = 4

# Sketch on XY plane
sketch7 = body.newObject("Sketcher::SketchObject", "Sketch006")
sketch7.AttachmentSupport = (doc.getObject("XY_Plane"), [""])
sketch7.MapMode = "FlatFace"
sketch7.AttachmentOffset = App.Placement(Vector(0, 0, 1.5), App.Rotation())
sketch7.addGeometry([
    Part.Circle(Vector(-15, 22, 0), Vector(0, 0, 1), 1.1),
    Part.Circle(Vector(15, -22, 0), Vector(0, 0, 1), 1.1),
], False)
sketch7.addConstraint([
    Sketcher.Constraint("Equal", 0, 1),
    Sketcher.Constraint("Symmetric", 0, 3, 1, 3, -1, 1),
    Sketcher.Constraint("Diameter", 0, Q("2.2 mm")),
    Sketcher.Constraint("DistanceX", 0, 3, -1, 1, Q("15 mm")),
    Sketcher.Constraint("DistanceY", -1, 1, 0, 3, Q("22 mm")),
])
pocket3 = body.newObject("PartDesign::Pocket", "Pocket002")
pocket3.Profile = sketch7
pocket3.Length = 10

doc.recompute()
